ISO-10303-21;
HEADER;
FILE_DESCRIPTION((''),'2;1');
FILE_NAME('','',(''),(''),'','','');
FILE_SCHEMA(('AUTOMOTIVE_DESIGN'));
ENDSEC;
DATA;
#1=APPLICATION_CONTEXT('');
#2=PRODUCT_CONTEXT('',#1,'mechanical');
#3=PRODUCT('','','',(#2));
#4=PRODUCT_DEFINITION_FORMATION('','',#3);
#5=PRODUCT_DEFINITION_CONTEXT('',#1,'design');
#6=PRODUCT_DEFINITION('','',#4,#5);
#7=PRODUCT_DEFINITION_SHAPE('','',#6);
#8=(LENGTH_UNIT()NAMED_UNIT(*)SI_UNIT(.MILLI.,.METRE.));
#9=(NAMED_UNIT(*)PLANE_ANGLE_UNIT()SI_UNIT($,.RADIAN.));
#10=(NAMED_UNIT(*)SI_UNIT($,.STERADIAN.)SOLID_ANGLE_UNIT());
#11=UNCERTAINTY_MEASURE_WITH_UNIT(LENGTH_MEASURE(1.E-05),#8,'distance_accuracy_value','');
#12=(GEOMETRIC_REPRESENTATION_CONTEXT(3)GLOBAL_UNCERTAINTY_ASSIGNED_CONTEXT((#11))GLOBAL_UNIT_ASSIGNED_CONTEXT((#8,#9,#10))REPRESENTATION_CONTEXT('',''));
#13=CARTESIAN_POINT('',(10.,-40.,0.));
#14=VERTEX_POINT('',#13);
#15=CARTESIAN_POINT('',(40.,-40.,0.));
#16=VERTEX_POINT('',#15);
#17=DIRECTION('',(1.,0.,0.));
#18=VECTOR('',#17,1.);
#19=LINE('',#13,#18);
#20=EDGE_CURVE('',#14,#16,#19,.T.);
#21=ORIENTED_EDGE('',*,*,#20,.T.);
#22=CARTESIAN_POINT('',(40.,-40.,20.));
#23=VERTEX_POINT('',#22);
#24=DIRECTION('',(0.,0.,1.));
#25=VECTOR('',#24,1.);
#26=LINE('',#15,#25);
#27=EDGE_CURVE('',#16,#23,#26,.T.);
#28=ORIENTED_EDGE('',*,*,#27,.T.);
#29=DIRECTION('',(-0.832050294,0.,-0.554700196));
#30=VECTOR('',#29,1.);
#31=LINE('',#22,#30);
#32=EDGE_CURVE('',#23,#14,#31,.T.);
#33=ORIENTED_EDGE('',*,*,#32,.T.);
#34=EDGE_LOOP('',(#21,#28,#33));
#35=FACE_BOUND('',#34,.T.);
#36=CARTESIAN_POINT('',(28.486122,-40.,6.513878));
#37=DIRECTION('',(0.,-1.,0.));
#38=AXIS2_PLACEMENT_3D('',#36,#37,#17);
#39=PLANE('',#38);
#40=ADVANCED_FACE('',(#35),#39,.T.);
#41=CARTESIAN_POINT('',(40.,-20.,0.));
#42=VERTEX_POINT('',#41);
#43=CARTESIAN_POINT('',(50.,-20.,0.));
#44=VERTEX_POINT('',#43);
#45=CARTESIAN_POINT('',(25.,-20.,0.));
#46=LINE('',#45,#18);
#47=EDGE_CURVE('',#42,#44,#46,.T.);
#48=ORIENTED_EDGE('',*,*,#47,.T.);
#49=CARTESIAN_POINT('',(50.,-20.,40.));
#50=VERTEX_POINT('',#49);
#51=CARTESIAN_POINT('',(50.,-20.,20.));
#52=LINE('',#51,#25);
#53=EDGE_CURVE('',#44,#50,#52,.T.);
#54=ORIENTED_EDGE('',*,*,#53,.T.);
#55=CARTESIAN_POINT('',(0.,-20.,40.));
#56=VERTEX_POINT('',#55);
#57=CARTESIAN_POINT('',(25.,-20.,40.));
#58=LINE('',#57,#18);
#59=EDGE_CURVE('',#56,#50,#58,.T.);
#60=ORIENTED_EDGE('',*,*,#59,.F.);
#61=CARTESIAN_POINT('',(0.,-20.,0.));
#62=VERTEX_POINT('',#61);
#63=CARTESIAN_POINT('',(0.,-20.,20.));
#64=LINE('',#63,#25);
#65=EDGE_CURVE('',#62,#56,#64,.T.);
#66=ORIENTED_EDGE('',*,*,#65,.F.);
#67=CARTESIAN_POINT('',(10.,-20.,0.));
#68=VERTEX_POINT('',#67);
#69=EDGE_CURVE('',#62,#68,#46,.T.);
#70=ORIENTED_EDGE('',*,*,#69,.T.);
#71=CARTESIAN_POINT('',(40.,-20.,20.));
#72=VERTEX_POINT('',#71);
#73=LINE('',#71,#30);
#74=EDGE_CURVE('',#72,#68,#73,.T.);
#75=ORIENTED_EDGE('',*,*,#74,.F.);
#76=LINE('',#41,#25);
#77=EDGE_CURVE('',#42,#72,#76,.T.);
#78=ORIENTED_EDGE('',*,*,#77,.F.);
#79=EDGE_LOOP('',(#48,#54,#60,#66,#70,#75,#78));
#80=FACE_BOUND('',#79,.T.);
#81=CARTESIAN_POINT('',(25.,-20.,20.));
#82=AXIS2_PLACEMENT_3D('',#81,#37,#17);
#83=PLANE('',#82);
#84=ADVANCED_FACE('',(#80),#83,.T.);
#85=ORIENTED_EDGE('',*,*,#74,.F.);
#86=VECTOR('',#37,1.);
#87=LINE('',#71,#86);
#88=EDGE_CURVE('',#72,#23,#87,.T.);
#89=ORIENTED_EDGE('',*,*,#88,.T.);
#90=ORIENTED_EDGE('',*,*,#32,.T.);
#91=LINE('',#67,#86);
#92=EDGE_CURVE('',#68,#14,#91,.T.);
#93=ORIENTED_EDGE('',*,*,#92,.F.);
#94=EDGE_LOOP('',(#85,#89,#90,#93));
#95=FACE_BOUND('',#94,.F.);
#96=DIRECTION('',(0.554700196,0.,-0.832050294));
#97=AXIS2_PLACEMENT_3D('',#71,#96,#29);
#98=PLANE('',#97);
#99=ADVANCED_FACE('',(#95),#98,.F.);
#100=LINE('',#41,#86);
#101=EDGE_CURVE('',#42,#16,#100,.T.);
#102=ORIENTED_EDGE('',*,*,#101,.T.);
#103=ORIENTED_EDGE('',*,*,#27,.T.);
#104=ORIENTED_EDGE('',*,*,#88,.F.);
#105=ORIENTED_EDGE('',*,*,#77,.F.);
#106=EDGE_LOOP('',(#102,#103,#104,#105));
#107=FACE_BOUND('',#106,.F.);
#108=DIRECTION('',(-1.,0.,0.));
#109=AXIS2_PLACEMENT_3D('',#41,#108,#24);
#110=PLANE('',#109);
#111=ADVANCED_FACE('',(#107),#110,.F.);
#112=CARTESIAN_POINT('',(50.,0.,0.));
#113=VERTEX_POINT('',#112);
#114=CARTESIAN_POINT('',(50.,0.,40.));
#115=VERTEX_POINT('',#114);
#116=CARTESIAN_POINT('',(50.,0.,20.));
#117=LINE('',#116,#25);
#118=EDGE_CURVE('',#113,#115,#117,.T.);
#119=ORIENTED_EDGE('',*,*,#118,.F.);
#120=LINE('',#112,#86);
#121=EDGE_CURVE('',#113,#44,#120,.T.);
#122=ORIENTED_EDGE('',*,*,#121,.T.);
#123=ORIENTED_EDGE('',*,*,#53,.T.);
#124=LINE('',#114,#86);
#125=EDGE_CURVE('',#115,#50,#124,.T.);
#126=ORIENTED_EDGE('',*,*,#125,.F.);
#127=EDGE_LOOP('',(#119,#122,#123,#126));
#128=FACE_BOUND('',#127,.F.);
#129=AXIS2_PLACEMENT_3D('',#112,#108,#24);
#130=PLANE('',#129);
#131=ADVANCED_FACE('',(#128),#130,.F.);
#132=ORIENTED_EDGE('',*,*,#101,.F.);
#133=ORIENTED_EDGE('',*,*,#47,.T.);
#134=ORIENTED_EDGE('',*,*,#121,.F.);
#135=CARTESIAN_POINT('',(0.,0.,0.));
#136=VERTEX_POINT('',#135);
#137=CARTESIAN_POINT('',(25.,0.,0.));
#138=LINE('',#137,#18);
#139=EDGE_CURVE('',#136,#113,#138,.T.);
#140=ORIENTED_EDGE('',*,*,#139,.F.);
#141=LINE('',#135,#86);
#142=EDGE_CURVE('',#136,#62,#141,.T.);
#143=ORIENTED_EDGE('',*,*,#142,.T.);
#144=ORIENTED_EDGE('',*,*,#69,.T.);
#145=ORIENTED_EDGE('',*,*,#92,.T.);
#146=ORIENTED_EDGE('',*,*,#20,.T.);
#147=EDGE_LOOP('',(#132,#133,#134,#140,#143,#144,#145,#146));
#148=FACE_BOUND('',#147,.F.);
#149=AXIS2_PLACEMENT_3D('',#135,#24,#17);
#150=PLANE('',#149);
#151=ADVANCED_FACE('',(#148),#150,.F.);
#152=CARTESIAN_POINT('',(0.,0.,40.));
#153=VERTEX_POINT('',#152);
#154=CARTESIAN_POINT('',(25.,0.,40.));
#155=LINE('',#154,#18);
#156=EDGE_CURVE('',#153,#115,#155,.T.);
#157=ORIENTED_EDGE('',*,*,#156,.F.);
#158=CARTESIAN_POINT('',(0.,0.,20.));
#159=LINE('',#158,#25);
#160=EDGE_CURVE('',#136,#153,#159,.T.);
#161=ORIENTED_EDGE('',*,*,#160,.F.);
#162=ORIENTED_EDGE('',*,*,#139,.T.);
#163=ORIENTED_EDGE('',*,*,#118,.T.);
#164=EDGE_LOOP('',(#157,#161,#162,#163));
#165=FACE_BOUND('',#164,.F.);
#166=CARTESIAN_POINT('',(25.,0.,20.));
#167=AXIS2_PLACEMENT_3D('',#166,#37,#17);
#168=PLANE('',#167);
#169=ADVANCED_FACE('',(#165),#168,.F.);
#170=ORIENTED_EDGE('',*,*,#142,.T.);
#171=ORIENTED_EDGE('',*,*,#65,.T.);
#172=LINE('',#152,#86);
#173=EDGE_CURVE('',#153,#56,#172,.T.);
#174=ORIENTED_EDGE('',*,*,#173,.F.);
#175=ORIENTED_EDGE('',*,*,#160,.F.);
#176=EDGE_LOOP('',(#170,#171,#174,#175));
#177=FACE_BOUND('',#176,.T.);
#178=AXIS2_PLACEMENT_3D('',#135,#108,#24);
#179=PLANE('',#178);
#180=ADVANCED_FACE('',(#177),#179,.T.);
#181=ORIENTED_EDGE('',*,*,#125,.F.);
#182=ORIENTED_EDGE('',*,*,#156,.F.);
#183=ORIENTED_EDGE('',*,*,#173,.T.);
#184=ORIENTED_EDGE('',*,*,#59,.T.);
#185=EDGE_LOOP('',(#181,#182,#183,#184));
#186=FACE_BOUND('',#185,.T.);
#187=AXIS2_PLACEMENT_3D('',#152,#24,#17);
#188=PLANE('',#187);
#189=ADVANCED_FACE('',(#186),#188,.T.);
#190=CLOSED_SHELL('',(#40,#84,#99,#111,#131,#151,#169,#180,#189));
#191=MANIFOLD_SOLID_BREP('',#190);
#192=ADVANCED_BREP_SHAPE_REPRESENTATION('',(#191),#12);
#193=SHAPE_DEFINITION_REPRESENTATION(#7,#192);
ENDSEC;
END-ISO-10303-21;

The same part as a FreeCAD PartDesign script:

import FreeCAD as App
import Part
import Sketcher

V = App.Vector
Q = App.Units.Quantity

doc = App.newDocument("Part")
body = doc.addObject("PartDesign::Body", "Body")

sketch1 = doc.addObject("Sketcher::SketchObject", "Sketch")
body.addObject(sketch1)
sketch1.AttachmentSupport = (doc.XZ_Plane, [""])
sketch1.MapMode = "FlatFace"
sketch1.addGeometry(Part.LineSegment(V(0, 40, 0), V(0, 0, 0)), False)
sketch1.addGeometry(Part.LineSegment(V(0, 0, 0), V(50, 0, 0)), False)
sketch1.addGeometry(Part.LineSegment(V(50, 0, 0), V(50, 40, 0)), False)
sketch1.addGeometry(Part.LineSegment(V(50, 40, 0), V(0, 40, 0)), False)
sketch1.addConstraint(Sketcher.Constraint("Coincident", 0, 2, 1, 1))
sketch1.addConstraint(Sketcher.Constraint("Coincident", 1, 2, 2, 1))
sketch1.addConstraint(Sketcher.Constraint("Coincident", 2, 2, 3, 1))
sketch1.addConstraint(Sketcher.Constraint("Coincident", 3, 2, 0, 1))
sketch1.addConstraint(Sketcher.Constraint("Vertical", 0))
sketch1.addConstraint(Sketcher.Constraint("Horizontal", 1))
sketch1.addConstraint(Sketcher.Constraint("Vertical", 2))
sketch1.addConstraint(Sketcher.Constraint("Horizontal", 3))
sketch1.addConstraint(Sketcher.Constraint("Coincident", 0, 2, -1, 1))
sketch1.addConstraint(Sketcher.Constraint("DistanceX", 1, 1, 1, 2, Q("50 mm")))
sketch1.addConstraint(Sketcher.Constraint("DistanceY", 0, 2, 0, 1, Q("40 mm")))
pad1 = doc.addObject("PartDesign::Pad", "Pad")
body.addObject(pad1)
pad1.Profile = sketch1
pad1.Length = 20

sketch2 = doc.addObject("Sketcher::SketchObject", "Sketch001")
body.addObject(sketch2)
sketch2.AttachmentSupport = (doc.XZ_Plane, [""])
sketch2.MapMode = "FlatFace"
sketch2.AttachmentOffset = App.Placement(V(0, 0, 20), App.Rotation())
sketch2.addGeometry(Part.LineSegment(V(40, 20, 0), V(10, 0, 0)), False)
sketch2.addGeometry(Part.LineSegment(V(10, 0, 0), V(40, 0, 0)), False)
sketch2.addGeometry(Part.LineSegment(V(40, 0, 0), V(40, 20, 0)), False)
sketch2.addConstraint(Sketcher.Constraint("Coincident", 0, 2, 1, 1))
sketch2.addConstraint(Sketcher.Constraint("Coincident", 1, 2, 2, 1))
sketch2.addConstraint(Sketcher.Constraint("Coincident", 2, 2, 0, 1))
sketch2.addConstraint(Sketcher.Constraint("Horizontal", 1))
sketch2.addConstraint(Sketcher.Constraint("Vertical", 2))
sketch2.addConstraint(Sketcher.Constraint("PointOnObject", 0, 2, -1))
sketch2.addConstraint(Sketcher.Constraint("DistanceX", 1, 1, 1, 2, Q("30 mm")))
sketch2.addConstraint(Sketcher.Constraint("DistanceY", 2, 1, 2, 2, Q("20 mm")))
sketch2.addConstraint(Sketcher.Constraint("DistanceX", -1, 1, 0, 2, Q("10 mm")))
pad2 = doc.addObject("PartDesign::Pad", "Pad001")
body.addObject(pad2)
pad2.Profile = sketch2
pad2.Length = 20

doc.recompute()
